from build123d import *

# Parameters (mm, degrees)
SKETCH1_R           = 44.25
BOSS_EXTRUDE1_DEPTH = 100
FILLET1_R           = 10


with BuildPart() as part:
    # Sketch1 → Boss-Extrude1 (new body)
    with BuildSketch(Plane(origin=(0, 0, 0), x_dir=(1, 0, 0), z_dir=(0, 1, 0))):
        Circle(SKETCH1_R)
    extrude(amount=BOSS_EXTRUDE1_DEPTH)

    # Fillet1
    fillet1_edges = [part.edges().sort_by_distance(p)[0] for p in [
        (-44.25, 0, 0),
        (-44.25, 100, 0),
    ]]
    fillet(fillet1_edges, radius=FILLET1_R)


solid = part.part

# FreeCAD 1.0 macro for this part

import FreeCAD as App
import Part
import Sketcher

V = App.Vector
Q = App.Units.Quantity


def edges_at(feature, points):
    """Names of the edges that pass closest to the given points."""
    edges = feature.Shape.Edges
    near = lambda p: min(range(len(edges)), key=lambda i: edges[i].distToShape(Part.Vertex(*p))[0])
    return sorted({f"Edge{near(p) + 1}" for p in points})

doc = App.newDocument("Part")
params = doc.addObject("Spreadsheet::Sheet", "Params")
for row, (alias, value) in enumerate([
    ("sketch1_diameter", "88.5 mm"),
    ("pad1_length", "100 mm"),
    ("fillet_radius", "10 mm"),
], start=1):
    params.set(f"A{row}", alias)
    params.set(f"B{row}", "=" + value)
    params.setAlias(f"B{row}", alias)

body = doc.addObject("PartDesign::Body", "Body")

# Sketch on XZ plane
sketch1 = body.newObject("Sketcher::SketchObject", "Sketch")
sketch1.AttachmentSupport = (doc.getObject("XZ_Plane"), [""])
sketch1.MapMode = "FlatFace"
sketch1.addGeometry(Part.Circle(V(0, 0, 0), V(0, 0, 1), 44.25), False)
sketch1.addConstraint(Sketcher.Constraint("Coincident", 0, 3, -1, 1))
sketch1.addConstraint(Sketcher.Constraint("Diameter", 0, Q("88.5 mm")))
sketch1.setExpression("Constraints[1]", "Params.sketch1_diameter")
pad1 = body.newObject("PartDesign::Pad", "Pad")
pad1.Profile = sketch1
pad1.setExpression("Length", "Params.pad1_length")
pad1.Reversed = True
doc.recompute()

fillet = body.newObject("PartDesign::Fillet", "Fillet")
fillet.Base = (pad1, edges_at(pad1, [(-44.25, 0, 0), (-44.25, 100, 0)]))
fillet.setExpression("Radius", "Params.fillet_radius")

doc.recompute()
